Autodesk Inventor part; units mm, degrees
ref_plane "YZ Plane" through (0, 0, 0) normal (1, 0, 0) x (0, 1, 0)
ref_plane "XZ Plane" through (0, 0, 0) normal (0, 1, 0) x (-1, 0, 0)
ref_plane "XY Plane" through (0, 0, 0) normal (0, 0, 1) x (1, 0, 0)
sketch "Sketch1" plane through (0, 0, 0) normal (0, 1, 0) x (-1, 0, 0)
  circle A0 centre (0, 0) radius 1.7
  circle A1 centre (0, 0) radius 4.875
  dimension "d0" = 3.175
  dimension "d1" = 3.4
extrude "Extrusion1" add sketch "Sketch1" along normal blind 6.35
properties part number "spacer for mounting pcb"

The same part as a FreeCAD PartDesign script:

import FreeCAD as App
import Part
import Sketcher
Q = App.Units.Quantity

doc = App.newDocument("Part")
body = doc.addObject("PartDesign::Body", "Body")

sketch1 = body.newObject("Sketcher::SketchObject", "Sketch")
sketch1.AttachmentSupport = (doc.getObject("XZ_Plane"), [""])
sketch1.MapMode = "FlatFace"
sketch1.addGeometry([
    Part.Circle(App.Vector(0, 0, 0), App.Vector(0, 0, 1), 4.875),
    Part.Circle(App.Vector(0, 0, 0), App.Vector(0, 0, 1), 1.7),
], False)
sketch1.addConstraint([
    Sketcher.Constraint("Coincident", 0, 3, -1, 1),
    Sketcher.Constraint("Coincident", 1, 3, -1, 1),
    Sketcher.Constraint("Diameter", 1, Q("3.4 mm")),
    Sketcher.Constraint("Diameter", 0, Q("9.75 mm")),
])
pad1 = body.newObject("PartDesign::Pad", "Pad")
pad1.Profile = sketch1
pad1.Length = 6.35
pad1.Reversed = True

doc.recompute()
